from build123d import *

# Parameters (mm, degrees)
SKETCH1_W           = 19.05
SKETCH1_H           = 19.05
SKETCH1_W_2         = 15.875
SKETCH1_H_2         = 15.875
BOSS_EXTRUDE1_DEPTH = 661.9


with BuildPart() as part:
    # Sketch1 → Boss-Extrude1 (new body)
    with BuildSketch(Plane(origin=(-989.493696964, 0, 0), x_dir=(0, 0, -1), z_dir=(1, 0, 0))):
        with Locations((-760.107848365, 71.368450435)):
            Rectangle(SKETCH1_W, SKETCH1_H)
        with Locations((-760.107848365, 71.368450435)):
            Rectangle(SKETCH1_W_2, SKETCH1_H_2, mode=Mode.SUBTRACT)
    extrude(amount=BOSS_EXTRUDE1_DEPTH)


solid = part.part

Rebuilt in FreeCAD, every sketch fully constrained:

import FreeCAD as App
import Part
import Sketcher
Q = App.Units.Quantity


def add_polygon(sketch, points):
    """Adds a closed chain of lines whose ends are joined by coincident constraints."""
    first, n = sketch.GeometryCount, len(points)
    for a, b in zip(points, points[1:] + points[:1]):
        sketch.addGeometry(Part.LineSegment(App.Vector(*a, 0), App.Vector(*b, 0)), False)
    for i in range(n):
        sketch.addConstraint(Sketcher.Constraint("Coincident", first + i, 2, first + (i + 1) % n, 1))

doc = App.newDocument("Part")
params = doc.addObject("Spreadsheet::Sheet", "Params")
for row, (alias, value) in enumerate([
    ("sketch1_width", "0.75 in"),
    ("sketch1_width2", "0.625 in"),
    ("pad1_length", "661.9 mm"),
], start=1):
    params.set(f"A{row}", alias)
    params.set(f"B{row}", "=" + value)
    params.setAlias(f"B{row}", alias)

body = doc.addObject("PartDesign::Body", "Body")

# Sketch on YZ plane
sketch1 = doc.addObject("Sketcher::SketchObject", "Sketch")
body.addObject(sketch1)
sketch1.AttachmentSupport = (doc.YZ_Plane, [""])
sketch1.MapMode = "FlatFace"
sketch1.AttachmentOffset = App.Placement(App.Vector(0, 0, -989.493697), App.Rotation())
add_polygon(sketch1, [(81, 770), (62, 770), (62, 751), (81, 751)])  # lines 0-3
add_polygon(sketch1, [(63, 752), (63, 768), (79, 768), (79, 752)])  # lines 4-7
sketch1.addConstraint([
    Sketcher.Constraint("Horizontal", 0),
    Sketcher.Constraint("Vertical", 1),
    Sketcher.Constraint("Horizontal", 2),
    Sketcher.Constraint("Vertical", 3),
    Sketcher.Constraint("Vertical", 4),
    Sketcher.Constraint("Horizontal", 5),
    Sketcher.Constraint("Vertical", 6),
    Sketcher.Constraint("Horizontal", 7),
    Sketcher.Constraint("Equal", 2, 1),
    Sketcher.Constraint("Equal", 7, 4),
    Sketcher.Constraint("DistanceX", 0, 2, 0, 1, Q("0.75 in")),
    Sketcher.Constraint("DistanceX", 5, 1, 5, 2, Q("0.625 in")),
    Sketcher.Constraint("DistanceX", 0, 2, 4, 2, Q("0.0625 in")),
    Sketcher.Constraint("DistanceY", 4, 2, 0, 2, Q("0.0625 in")),
    Sketcher.Constraint("DistanceX", -1, 1, 0, 2, Q("61.84345 mm")),
    Sketcher.Constraint("DistanceY", -1, 1, 0, 2, Q("769.632848 mm")),
])
sketch1.setExpression("Constraints[18]", "Params.sketch1_width")
sketch1.setExpression("Constraints[19]", "Params.sketch1_width2")
pad1 = doc.addObject("PartDesign::Pad", "Pad")
body.addObject(pad1)
pad1.Profile = sketch1
pad1.setExpression("Length", "Params.pad1_length")

doc.recompute()
